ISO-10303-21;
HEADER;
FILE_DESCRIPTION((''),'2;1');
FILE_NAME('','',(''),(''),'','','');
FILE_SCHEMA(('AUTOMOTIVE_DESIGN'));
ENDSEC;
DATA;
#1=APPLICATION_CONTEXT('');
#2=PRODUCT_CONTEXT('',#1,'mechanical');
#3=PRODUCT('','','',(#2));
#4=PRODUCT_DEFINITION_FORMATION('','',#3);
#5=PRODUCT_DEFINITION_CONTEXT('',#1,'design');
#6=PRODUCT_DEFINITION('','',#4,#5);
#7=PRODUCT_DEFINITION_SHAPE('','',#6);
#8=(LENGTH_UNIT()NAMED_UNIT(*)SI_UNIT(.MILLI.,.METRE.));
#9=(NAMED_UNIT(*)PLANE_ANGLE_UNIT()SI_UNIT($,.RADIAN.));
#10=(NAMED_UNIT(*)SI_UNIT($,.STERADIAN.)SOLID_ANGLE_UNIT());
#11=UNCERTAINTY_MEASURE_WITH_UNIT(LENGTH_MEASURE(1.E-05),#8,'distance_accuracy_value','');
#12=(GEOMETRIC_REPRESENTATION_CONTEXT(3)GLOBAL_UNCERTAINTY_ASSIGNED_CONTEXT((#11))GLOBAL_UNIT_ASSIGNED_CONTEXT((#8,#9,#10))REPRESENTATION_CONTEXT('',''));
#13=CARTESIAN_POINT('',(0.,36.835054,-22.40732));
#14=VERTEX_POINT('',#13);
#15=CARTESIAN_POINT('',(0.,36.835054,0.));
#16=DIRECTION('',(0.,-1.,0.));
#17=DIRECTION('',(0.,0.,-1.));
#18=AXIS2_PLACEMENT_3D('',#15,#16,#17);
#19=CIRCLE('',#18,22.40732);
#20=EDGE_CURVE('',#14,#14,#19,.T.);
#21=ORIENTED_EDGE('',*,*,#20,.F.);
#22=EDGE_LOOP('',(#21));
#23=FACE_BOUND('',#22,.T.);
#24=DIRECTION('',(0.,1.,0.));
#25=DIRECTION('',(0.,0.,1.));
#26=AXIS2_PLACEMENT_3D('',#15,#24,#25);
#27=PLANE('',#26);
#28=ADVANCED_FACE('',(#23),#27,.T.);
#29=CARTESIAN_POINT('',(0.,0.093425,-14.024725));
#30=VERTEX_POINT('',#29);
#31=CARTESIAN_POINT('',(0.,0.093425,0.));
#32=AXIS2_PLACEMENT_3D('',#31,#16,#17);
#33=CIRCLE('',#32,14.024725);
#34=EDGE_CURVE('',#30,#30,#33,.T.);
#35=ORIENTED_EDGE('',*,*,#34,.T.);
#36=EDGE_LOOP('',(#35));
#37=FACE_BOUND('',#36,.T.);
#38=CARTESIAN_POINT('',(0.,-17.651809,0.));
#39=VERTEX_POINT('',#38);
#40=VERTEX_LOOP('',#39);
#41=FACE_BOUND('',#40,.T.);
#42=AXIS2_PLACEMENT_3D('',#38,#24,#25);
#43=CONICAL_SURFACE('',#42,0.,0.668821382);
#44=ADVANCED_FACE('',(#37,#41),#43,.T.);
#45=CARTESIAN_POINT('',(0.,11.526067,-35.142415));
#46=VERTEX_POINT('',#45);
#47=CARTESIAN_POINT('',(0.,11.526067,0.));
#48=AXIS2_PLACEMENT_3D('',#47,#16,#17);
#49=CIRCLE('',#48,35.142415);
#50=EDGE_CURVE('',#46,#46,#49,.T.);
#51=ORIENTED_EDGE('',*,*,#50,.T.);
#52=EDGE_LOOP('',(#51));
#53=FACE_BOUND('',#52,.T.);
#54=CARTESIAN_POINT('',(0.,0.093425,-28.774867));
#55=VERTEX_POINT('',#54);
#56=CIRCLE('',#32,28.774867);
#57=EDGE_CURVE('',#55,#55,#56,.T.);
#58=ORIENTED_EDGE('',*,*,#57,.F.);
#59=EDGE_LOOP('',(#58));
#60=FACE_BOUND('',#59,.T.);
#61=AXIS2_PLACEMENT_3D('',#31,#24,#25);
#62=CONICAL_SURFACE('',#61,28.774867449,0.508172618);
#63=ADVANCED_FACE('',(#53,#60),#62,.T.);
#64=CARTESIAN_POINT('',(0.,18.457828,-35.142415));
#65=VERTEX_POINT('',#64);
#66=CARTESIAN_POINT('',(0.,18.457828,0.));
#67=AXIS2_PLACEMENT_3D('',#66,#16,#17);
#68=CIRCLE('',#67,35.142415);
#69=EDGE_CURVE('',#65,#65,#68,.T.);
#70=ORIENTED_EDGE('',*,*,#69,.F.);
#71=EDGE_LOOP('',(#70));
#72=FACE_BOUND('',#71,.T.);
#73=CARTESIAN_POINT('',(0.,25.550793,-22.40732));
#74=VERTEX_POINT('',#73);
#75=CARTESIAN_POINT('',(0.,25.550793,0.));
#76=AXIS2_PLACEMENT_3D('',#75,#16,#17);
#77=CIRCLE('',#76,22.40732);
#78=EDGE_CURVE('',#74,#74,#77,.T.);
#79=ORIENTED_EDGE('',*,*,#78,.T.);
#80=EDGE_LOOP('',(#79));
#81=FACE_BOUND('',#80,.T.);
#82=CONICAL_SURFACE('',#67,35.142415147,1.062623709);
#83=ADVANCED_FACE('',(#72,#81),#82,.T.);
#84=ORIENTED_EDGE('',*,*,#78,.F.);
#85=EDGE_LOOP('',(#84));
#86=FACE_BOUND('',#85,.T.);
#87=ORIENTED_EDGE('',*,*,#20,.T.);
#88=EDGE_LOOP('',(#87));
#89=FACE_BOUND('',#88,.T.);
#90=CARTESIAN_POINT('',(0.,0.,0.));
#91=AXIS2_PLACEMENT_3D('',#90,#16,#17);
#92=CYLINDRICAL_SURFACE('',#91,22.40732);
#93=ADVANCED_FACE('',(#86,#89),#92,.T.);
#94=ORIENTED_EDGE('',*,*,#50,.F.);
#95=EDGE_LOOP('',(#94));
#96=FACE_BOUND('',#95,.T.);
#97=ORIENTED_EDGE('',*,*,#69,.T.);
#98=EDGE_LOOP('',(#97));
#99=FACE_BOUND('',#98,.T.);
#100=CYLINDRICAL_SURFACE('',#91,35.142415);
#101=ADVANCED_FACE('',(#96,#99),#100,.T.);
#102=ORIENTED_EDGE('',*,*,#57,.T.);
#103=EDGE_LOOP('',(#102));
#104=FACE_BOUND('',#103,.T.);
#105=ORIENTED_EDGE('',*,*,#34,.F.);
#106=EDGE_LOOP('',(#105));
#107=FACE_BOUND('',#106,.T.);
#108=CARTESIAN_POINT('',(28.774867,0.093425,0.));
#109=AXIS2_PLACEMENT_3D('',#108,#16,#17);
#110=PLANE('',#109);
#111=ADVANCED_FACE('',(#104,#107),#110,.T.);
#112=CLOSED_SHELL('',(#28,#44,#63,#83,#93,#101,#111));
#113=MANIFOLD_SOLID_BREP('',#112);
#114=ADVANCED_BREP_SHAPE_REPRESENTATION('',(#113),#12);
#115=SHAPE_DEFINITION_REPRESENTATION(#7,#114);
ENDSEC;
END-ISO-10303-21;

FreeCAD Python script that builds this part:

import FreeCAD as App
import Part
import Sketcher
from FreeCAD import Vector
Q = App.Units.Quantity


def add_polygon(sketch, points):
    """Adds a closed chain of lines whose ends are joined by coincident constraints."""
    first, n = sketch.GeometryCount, len(points)
    for a, b in zip(points, points[1:] + points[:1]):
        sketch.addGeometry(Part.LineSegment(App.Vector(*a, 0), App.Vector(*b, 0)), False)
    for i in range(n):
        sketch.addConstraint(Sketcher.Constraint("Coincident", first + i, 2, first + (i + 1) % n, 1))

doc = App.newDocument("Part")
body = doc.addObject("PartDesign::Body", "Body")

sketch1 = body.newObject("Sketcher::SketchObject", "Sketch")
sketch1.AttachmentSupport = (doc.getObject("XY_Plane"), [""])
sketch1.MapMode = "FlatFace"
add_polygon(sketch1, [(22.40732, 36.835054), (0, 36.835054), (0, -17.651809), (14.024725, 0.093425), (28.774867, 0.093425), (35.142415, 11.526067), (35.142415, 18.457828), (22.40732, 25.550793)])
sketch1.addConstraint([
    Sketcher.Constraint("Horizontal", 0),
    Sketcher.Constraint("Vertical", 1),
    Sketcher.Constraint("Horizontal", 3),
    Sketcher.Constraint("Vertical", 5),
    Sketcher.Constraint("Vertical", 7),
    Sketcher.Constraint("PointOnObject", 0, 2, -2),
    Sketcher.Constraint("Perpendicular", 4, 6),
    Sketcher.Constraint("DistanceX", 0, 2, 0, 1, Q("22.40732 mm")),
    Sketcher.Constraint("DistanceY", 5, 1, 5, 2, Q("6.931761 mm")),
    Sketcher.Constraint("DistanceY", 7, 1, 7, 2, Q("11.284262 mm")),
    Sketcher.Constraint("Distance", 4, Q("13.08629 mm")),
    Sketcher.Constraint("DistanceX", 3, 1, 3, 2, Q("14.750142 mm")),
    Sketcher.Constraint("DistanceY", 1, 2, 1, 1, Q("54.486864 mm")),
    Sketcher.Constraint("DistanceY", 1, 2, -1, 1, Q("17.651809 mm")),
    Sketcher.Constraint("DistanceY", -1, 1, 5, 2, Q("18.457828 mm")),
    Sketcher.Constraint("DistanceY", 2, 2, 0, 2, Q("36.74163 mm")),
])
revolution = body.newObject("PartDesign::Revolution", "Revolution")
revolution.Profile = sketch1
revolution.ReferenceAxis = (sketch1, ["V_Axis"])
revolution.Angle = 360

doc.recompute()
